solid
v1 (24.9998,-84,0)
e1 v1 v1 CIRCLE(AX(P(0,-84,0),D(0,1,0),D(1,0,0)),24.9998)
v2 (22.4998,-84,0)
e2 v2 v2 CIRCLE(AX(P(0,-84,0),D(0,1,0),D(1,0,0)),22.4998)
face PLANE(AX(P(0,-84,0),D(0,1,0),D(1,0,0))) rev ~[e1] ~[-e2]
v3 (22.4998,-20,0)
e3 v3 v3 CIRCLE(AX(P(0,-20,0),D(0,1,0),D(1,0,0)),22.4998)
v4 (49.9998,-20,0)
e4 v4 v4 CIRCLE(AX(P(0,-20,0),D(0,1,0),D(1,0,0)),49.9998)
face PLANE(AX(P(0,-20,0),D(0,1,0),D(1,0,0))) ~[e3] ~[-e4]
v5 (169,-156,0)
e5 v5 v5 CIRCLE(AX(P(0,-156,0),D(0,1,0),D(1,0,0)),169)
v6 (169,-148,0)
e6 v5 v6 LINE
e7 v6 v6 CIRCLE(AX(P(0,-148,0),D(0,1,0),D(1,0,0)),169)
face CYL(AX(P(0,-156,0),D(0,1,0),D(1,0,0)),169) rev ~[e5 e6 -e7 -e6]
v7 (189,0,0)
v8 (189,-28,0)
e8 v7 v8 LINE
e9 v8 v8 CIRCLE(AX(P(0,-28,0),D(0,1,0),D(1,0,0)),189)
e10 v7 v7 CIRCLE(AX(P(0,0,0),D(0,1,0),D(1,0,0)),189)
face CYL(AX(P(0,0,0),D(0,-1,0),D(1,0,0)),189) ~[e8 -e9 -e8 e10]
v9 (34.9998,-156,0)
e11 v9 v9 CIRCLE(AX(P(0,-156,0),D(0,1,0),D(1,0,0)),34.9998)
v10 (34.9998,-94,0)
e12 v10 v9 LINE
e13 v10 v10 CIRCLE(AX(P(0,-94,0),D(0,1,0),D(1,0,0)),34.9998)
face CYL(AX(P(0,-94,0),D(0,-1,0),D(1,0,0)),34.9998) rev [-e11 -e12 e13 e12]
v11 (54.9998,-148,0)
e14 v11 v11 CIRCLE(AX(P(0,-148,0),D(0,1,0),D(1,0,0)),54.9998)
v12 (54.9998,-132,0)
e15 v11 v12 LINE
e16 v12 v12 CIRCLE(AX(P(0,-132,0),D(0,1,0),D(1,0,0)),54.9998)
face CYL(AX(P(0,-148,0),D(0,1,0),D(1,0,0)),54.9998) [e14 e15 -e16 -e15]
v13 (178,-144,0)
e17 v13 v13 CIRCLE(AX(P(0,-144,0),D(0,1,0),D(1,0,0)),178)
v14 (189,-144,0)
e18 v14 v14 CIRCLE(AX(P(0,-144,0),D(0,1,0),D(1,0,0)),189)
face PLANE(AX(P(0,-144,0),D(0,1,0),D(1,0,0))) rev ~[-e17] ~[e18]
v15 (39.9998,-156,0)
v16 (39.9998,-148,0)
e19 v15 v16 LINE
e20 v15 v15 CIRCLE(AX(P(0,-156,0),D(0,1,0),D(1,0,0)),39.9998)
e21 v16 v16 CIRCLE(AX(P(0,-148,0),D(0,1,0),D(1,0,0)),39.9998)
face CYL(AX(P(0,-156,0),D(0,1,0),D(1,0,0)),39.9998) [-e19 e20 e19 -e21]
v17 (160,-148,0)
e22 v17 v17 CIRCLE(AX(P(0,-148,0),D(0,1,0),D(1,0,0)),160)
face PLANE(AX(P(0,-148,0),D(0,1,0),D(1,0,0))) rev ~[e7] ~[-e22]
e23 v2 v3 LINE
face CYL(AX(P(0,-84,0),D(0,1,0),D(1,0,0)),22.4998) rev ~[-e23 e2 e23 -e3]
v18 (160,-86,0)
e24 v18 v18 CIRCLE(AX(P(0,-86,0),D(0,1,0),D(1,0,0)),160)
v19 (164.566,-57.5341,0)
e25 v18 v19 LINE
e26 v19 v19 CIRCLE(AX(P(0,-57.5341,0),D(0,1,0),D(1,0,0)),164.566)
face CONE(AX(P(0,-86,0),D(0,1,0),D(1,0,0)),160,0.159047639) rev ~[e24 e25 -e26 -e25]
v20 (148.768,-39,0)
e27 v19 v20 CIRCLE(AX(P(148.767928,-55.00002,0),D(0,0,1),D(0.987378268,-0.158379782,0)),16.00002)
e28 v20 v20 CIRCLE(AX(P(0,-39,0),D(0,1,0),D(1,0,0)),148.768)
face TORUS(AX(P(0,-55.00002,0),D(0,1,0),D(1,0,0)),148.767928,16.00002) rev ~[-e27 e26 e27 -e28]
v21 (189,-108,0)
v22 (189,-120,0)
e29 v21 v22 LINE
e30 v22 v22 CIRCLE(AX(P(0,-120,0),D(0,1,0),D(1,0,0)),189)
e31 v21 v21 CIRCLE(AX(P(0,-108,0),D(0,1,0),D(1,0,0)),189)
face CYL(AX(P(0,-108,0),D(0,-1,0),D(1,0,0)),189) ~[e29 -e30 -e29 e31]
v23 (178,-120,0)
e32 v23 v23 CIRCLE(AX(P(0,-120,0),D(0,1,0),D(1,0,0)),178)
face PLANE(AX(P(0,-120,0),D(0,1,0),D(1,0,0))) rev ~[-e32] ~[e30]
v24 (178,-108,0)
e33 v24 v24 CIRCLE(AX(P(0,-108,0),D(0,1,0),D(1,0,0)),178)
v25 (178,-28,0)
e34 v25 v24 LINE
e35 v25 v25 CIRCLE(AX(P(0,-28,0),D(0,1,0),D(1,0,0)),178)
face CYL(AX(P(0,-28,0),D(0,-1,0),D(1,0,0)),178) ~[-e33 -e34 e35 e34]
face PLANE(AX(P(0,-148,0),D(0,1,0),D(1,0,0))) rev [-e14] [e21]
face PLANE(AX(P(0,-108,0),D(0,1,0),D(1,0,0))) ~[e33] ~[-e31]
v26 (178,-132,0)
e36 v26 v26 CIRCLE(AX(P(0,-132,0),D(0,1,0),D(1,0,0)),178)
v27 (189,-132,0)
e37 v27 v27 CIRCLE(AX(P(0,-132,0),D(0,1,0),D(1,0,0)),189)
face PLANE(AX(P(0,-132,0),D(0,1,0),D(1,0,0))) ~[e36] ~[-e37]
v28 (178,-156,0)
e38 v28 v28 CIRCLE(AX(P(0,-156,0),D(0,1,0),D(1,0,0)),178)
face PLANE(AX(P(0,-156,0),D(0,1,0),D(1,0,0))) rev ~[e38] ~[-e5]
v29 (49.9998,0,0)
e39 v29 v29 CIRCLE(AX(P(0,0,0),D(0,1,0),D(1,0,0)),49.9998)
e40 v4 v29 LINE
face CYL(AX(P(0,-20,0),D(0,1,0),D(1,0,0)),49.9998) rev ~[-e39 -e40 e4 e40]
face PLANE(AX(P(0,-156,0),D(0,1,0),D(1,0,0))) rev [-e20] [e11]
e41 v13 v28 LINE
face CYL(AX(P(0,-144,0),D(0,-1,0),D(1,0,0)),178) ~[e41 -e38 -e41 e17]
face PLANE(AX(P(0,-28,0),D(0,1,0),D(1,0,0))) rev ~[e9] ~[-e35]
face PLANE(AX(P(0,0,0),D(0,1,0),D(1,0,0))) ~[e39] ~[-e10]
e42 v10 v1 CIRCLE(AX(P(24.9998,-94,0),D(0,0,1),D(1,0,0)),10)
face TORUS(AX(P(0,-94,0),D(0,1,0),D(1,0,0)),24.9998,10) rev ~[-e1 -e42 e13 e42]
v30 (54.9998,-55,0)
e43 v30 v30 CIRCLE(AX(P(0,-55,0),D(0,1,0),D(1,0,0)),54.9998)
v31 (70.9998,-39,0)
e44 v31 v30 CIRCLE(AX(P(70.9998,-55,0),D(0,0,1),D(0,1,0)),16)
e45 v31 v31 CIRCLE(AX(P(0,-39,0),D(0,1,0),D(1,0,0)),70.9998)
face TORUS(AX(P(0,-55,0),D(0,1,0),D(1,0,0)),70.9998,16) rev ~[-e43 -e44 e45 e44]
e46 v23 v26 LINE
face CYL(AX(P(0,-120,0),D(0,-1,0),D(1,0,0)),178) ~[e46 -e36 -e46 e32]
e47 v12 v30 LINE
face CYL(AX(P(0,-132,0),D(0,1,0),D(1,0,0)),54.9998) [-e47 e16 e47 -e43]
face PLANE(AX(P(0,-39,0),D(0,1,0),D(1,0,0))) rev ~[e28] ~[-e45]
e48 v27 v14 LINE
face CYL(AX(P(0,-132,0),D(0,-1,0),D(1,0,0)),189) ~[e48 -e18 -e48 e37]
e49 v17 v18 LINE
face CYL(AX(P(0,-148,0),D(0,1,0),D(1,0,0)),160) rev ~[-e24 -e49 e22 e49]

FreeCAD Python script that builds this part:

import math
import FreeCAD as App
import Part
import Sketcher

V = App.Vector

doc = App.newDocument("Part")
body = doc.addObject("PartDesign::Body", "Body")

sketch1 = body.newObject("Sketcher::SketchObject", "Sketch")
sketch1.AttachmentSupport = (doc.getObject("XY_Plane"), [""])
sketch1.MapMode = "FlatFace"
sketch1.addGeometry(Part.LineSegment(V(189, 0, 0), V(49.9998, 0, 0)), False)
sketch1.addGeometry(Part.LineSegment(V(49.9998, 0, 0), V(49.9998, -20, 0)), False)
sketch1.addGeometry(Part.LineSegment(V(49.9998, -20, 0), V(22.4998, -20, 0)), False)
sketch1.addGeometry(Part.LineSegment(V(22.4998, -20, 0), V(22.4998, -84, 0)), False)
sketch1.addGeometry(Part.LineSegment(V(22.4998, -84, 0), V(24.9998, -84, 0)), False)
sketch1.addGeometry(Part.ArcOfCircle(Part.Circle(V(24.9998, -94, 0), V(0, 0, 1), 10), math.radians(0), math.radians(90)), False)
sketch1.addGeometry(Part.LineSegment(V(34.9998, -94, 0), V(34.9998, -156, 0)), False)
sketch1.addGeometry(Part.LineSegment(V(34.9998, -156, 0), V(39.9998, -156, 0)), False)
sketch1.addGeometry(Part.LineSegment(V(39.9998, -156, 0), V(39.9998, -148, 0)), False)
sketch1.addGeometry(Part.LineSegment(V(39.9998, -148, 0), V(54.9998, -148, 0)), False)
sketch1.addGeometry(Part.LineSegment(V(54.9998, -148, 0), V(54.9998, -55, 0)), False)
sketch1.addGeometry(Part.ArcOfCircle(Part.Circle(V(70.9998, -55, 0), V(0, 0, 1), 16), math.radians(90), math.radians(180)), False)
sketch1.addGeometry(Part.LineSegment(V(70.9998, -39, 0), V(148.768, -39, 0)), False)
sketch1.addGeometry(Part.ArcOfCircle(Part.Circle(V(148.768, -55, 0), V(0, 0, 1), 15.999952), math.radians(-9.112978), math.radians(90)), False)
sketch1.addGeometry(Part.LineSegment(V(164.566, -57.5341, 0), V(160, -86, 0)), False)
sketch1.addGeometry(Part.LineSegment(V(160, -86, 0), V(160, -148, 0)), False)
sketch1.addGeometry(Part.LineSegment(V(160, -148, 0), V(169, -148, 0)), False)
sketch1.addGeometry(Part.LineSegment(V(169, -148, 0), V(169, -156, 0)), False)
sketch1.addGeometry(Part.LineSegment(V(169, -156, 0), V(178, -156, 0)), False)
sketch1.addGeometry(Part.LineSegment(V(178, -156, 0), V(178, -144, 0)), False)
sketch1.addGeometry(Part.LineSegment(V(178, -144, 0), V(189, -144, 0)), False)
sketch1.addGeometry(Part.LineSegment(V(189, -144, 0), V(189, -132, 0)), False)
sketch1.addGeometry(Part.LineSegment(V(189, -132, 0), V(178, -132, 0)), False)
sketch1.addGeometry(Part.LineSegment(V(178, -132, 0), V(178, -120, 0)), False)
sketch1.addGeometry(Part.LineSegment(V(178, -120, 0), V(189, -120, 0)), False)
sketch1.addGeometry(Part.LineSegment(V(189, -120, 0), V(189, -108, 0)), False)
sketch1.addGeometry(Part.LineSegment(V(189, -108, 0), V(178, -108, 0)), False)
sketch1.addGeometry(Part.LineSegment(V(178, -108, 0), V(178, -28, 0)), False)
sketch1.addGeometry(Part.LineSegment(V(178, -28, 0), V(189, -28, 0)), False)
sketch1.addGeometry(Part.LineSegment(V(189, -28, 0), V(189, 0, 0)), False)
sketch1.addConstraint(Sketcher.Constraint("Coincident", 0, 2, 1, 1))
sketch1.addConstraint(Sketcher.Constraint("Coincident", 1, 2, 2, 1))
sketch1.addConstraint(Sketcher.Constraint("Coincident", 2, 2, 3, 1))
sketch1.addConstraint(Sketcher.Constraint("Coincident", 3, 2, 4, 1))
sketch1.addConstraint(Sketcher.Constraint("Tangent", 4, 2, 5, 2))
sketch1.addConstraint(Sketcher.Constraint("Tangent", 5, 1, 6, 1))
sketch1.addConstraint(Sketcher.Constraint("Coincident", 6, 2, 7, 1))
sketch1.addConstraint(Sketcher.Constraint("Coincident", 7, 2, 8, 1))
sketch1.addConstraint(Sketcher.Constraint("Coincident", 8, 2, 9, 1))
sketch1.addConstraint(Sketcher.Constraint("Coincident", 9, 2, 10, 1))
sketch1.addConstraint(Sketcher.Constraint("Tangent", 10, 2, 11, 2))
sketch1.addConstraint(Sketcher.Constraint("Tangent", 11, 1, 12, 1))
sketch1.addConstraint(Sketcher.Constraint("Tangent", 12, 2, 13, 2))
sketch1.addConstraint(Sketcher.Constraint("Tangent", 13, 1, 14, 1))
sketch1.addConstraint(Sketcher.Constraint("Coincident", 14, 2, 15, 1))
sketch1.addConstraint(Sketcher.Constraint("Coincident", 15, 2, 16, 1))
sketch1.addConstraint(Sketcher.Constraint("Coincident", 16, 2, 17, 1))
sketch1.addConstraint(Sketcher.Constraint("Coincident", 17, 2, 18, 1))
sketch1.addConstraint(Sketcher.Constraint("Coincident", 18, 2, 19, 1))
sketch1.addConstraint(Sketcher.Constraint("Coincident", 19, 2, 20, 1))
sketch1.addConstraint(Sketcher.Constraint("Coincident", 20, 2, 21, 1))
sketch1.addConstraint(Sketcher.Constraint("Coincident", 21, 2, 22, 1))
sketch1.addConstraint(Sketcher.Constraint("Coincident", 22, 2, 23, 1))
sketch1.addConstraint(Sketcher.Constraint("Coincident", 23, 2, 24, 1))
sketch1.addConstraint(Sketcher.Constraint("Coincident", 24, 2, 25, 1))
sketch1.addConstraint(Sketcher.Constraint("Coincident", 25, 2, 26, 1))
sketch1.addConstraint(Sketcher.Constraint("Coincident", 26, 2, 27, 1))
sketch1.addConstraint(Sketcher.Constraint("Coincident", 27, 2, 28, 1))
sketch1.addConstraint(Sketcher.Constraint("Coincident", 28, 2, 29, 1))
sketch1.addConstraint(Sketcher.Constraint("Coincident", 29, 2, 0, 1))
sketch1.addConstraint(Sketcher.Constraint("Horizontal", 0))
sketch1.addConstraint(Sketcher.Constraint("Vertical", 1))
sketch1.addConstraint(Sketcher.Constraint("Horizontal", 2))
sketch1.addConstraint(Sketcher.Constraint("Vertical", 3))
sketch1.addConstraint(Sketcher.Constraint("Horizontal", 4))
sketch1.addConstraint(Sketcher.Constraint("Vertical", 6))
sketch1.addConstraint(Sketcher.Constraint("Horizontal", 7))
sketch1.addConstraint(Sketcher.Constraint("Vertical", 8))
sketch1.addConstraint(Sketcher.Constraint("Horizontal", 9))
sketch1.addConstraint(Sketcher.Constraint("Vertical", 10))
sketch1.addConstraint(Sketcher.Constraint("Horizontal", 12))
sketch1.addConstraint(Sketcher.Constraint("Vertical", 15))
sketch1.addConstraint(Sketcher.Constraint("Horizontal", 16))
sketch1.addConstraint(Sketcher.Constraint("Vertical", 17))
sketch1.addConstraint(Sketcher.Constraint("Horizontal", 18))
sketch1.addConstraint(Sketcher.Constraint("Vertical", 19))
sketch1.addConstraint(Sketcher.Constraint("Horizontal", 20))
sketch1.addConstraint(Sketcher.Constraint("Vertical", 21))
sketch1.addConstraint(Sketcher.Constraint("Horizontal", 22))
sketch1.addConstraint(Sketcher.Constraint("Vertical", 23))
sketch1.addConstraint(Sketcher.Constraint("Horizontal", 24))
sketch1.addConstraint(Sketcher.Constraint("Vertical", 25))
sketch1.addConstraint(Sketcher.Constraint("Horizontal", 26))
sketch1.addConstraint(Sketcher.Constraint("Vertical", 27))
sketch1.addConstraint(Sketcher.Constraint("Horizontal", 28))
sketch1.addConstraint(Sketcher.Constraint("Vertical", 29))
sketch1.addConstraint(Sketcher.Constraint("Equal", 11, 13))
sketch1.addConstraint(Sketcher.Constraint("PointOnObject", 0, 2, -1))
sketch1.addConstraint(Sketcher.Constraint("Horizontal", 9, 2, 15, 2))
sketch1.addConstraint(Sketcher.Constraint("Horizontal", 7, 2, 17, 2))
sketch1.addConstraint(Sketcher.Constraint("Vertical", 19, 2, 22, 2))
sketch1.addConstraint(Sketcher.Constraint("Vertical", 21, 2, 24, 2))
sketch1.addConstraint(Sketcher.Constraint("Vertical", 23, 2, 26, 2))
sketch1.addConstraint(Sketcher.Constraint("Vertical", 25, 2, 28, 2))
sketch1.addConstraint(Sketcher.Constraint("Equal", 16, 18))
sketch1.addConstraint(Sketcher.Constraint("Equal", 6, 15))
sketch1.addConstraint(Sketcher.Constraint("Equal", 19, 21))
sketch1.addConstraint(Sketcher.Constraint("Equal", 21, 23))
sketch1.addConstraint(Sketcher.Constraint("Equal", 23, 25))
sketch1.addConstraint(Sketcher.Constraint("Radius", 5, 10.0))
sketch1.addConstraint(Sketcher.Constraint("Radius", 11, 16.0))
sketch1.addConstraint(Sketcher.Constraint("DistanceX", 7, 1, 7, 2, 5.0))
sketch1.addConstraint(Sketcher.Constraint("DistanceX", 9, 1, 9, 2, 15.0))
sketch1.addConstraint(Sketcher.Constraint("DistanceX", 16, 1, 16, 2, 9.0))
sketch1.addConstraint(Sketcher.Constraint("DistanceX", 20, 1, 20, 2, 11.0))
sketch1.addConstraint(Sketcher.Constraint("DistanceY", 1, 2, 1, 1, 20.0))
sketch1.addConstraint(Sketcher.Constraint("DistanceY", 3, 2, 3, 1, 64.0))
sketch1.addConstraint(Sketcher.Constraint("DistanceY", 8, 1, 8, 2, 8.0))
sketch1.addConstraint(Sketcher.Constraint("DistanceY", 19, 1, 19, 2, 12.0))
sketch1.addConstraint(Sketcher.Constraint("DistanceY", 27, 1, 27, 2, 80.0))
sketch1.addConstraint(Sketcher.Constraint("DistanceY", 29, 1, 29, 2, 28.0))
sketch1.addConstraint(Sketcher.Constraint("DistanceX", 4, 1, 4, 2, 2.5))
sketch1.addConstraint(Sketcher.Constraint("DistanceX", -1, 1, 20, 2, 189.0))
sketch1.addConstraint(Sketcher.Constraint("DistanceX", 1, 2, 10, 2, 5.0))
sketch1.addConstraint(Sketcher.Constraint("DistanceY", 12, 2, 27, 2, 11.0))
sketch1.addConstraint(Sketcher.Constraint("DistanceX", 0, 2, 0, 1, 139.0002))
sketch1.addConstraint(Sketcher.Constraint("DistanceX", 12, 1, 12, 2, 77.7682))
revolution = body.newObject("PartDesign::Revolution", "Revolution")
revolution.Profile = sketch1
revolution.ReferenceAxis = (sketch1, ["V_Axis"])
revolution.Angle = 360

doc.recompute()
